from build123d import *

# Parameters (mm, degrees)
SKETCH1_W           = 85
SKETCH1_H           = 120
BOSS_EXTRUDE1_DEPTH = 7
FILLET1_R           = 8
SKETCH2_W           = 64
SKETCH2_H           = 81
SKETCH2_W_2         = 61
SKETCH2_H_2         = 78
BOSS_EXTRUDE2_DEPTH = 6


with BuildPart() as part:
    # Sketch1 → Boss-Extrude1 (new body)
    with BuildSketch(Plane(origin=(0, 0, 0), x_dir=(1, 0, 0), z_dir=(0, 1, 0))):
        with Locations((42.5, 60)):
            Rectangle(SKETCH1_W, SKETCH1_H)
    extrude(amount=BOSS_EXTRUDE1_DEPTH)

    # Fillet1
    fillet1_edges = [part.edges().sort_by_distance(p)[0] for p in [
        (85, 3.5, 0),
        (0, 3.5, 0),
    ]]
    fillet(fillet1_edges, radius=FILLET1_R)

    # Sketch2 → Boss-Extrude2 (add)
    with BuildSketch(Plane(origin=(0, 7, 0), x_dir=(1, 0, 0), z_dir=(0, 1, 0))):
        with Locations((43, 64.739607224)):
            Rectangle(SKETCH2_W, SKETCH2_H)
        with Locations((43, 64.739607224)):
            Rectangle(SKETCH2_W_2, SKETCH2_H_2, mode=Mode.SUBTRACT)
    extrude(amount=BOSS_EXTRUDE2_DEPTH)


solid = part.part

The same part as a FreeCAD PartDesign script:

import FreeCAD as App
import Part
import Sketcher


def edges_at(feature, points):
    """Names of the edges that pass closest to the given points."""
    edges = feature.Shape.Edges
    near = lambda p: min(range(len(edges)), key=lambda i: edges[i].distToShape(Part.Vertex(*p))[0])
    return sorted({f"Edge{near(p) + 1}" for p in points})


def add_polygon(sketch, points):
    """Adds a closed chain of lines whose ends are joined by coincident constraints."""
    first, n = sketch.GeometryCount, len(points)
    for a, b in zip(points, points[1:] + points[:1]):
        sketch.addGeometry(Part.LineSegment(App.Vector(*a, 0), App.Vector(*b, 0)), False)
    for i in range(n):
        sketch.addConstraint(Sketcher.Constraint("Coincident", first + i, 2, first + (i + 1) % n, 1))

doc = App.newDocument("Part")
body = doc.addObject("PartDesign::Body", "Body")

sketch1 = body.newObject("Sketcher::SketchObject", "Sketch")
sketch1.AttachmentSupport = (doc.getObject("XZ_Plane"), [""])
sketch1.MapMode = "FlatFace"
add_polygon(sketch1, [(0, -120), (0, 0), (85, 0), (85, -120)])
sketch1.addConstraint([
    Sketcher.Constraint("Vertical", 0),
    Sketcher.Constraint("Horizontal", 1),
    Sketcher.Constraint("Vertical", 2),
    Sketcher.Constraint("Horizontal", 3),
    Sketcher.Constraint("Coincident", 0, 2, -1, 1),
    Sketcher.Constraint("DistanceX", 1, 1, 1, 2, 85.0),
    Sketcher.Constraint("DistanceY", 0, 1, 0, 2, 120.0),
])
pad1 = body.newObject("PartDesign::Pad", "Pad")
pad1.Profile = sketch1
pad1.Length = 7
pad1.Reversed = True
doc.recompute()

fillet = body.newObject("PartDesign::Fillet", "Fillet")
fillet.Base = (pad1, edges_at(pad1, [(85, 3.5, 0), (0, 3.5, 0)]))
fillet.Radius = 8

sketch2 = body.newObject("Sketcher::SketchObject", "Sketch001")
sketch2.AttachmentSupport = (doc.getObject("XZ_Plane"), [""])
sketch2.MapMode = "FlatFace"
sketch2.AttachmentOffset = App.Placement(App.Vector(0, 0, -7), App.Rotation())
add_polygon(sketch2, [(11, -105), (11, -24), (75, -24), (75, -105)])
add_polygon(sketch2, [(74, -26), (12, -26), (12, -104), (74, -104)])
sketch2.addConstraint([
    Sketcher.Constraint("Vertical", 0),
    Sketcher.Constraint("Horizontal", 1),
    Sketcher.Constraint("Vertical", 2),
    Sketcher.Constraint("Horizontal", 3),
    Sketcher.Constraint("Horizontal", 4),
    Sketcher.Constraint("Vertical", 5),
    Sketcher.Constraint("Horizontal", 6),
    Sketcher.Constraint("Vertical", 7),
    Sketcher.Constraint("DistanceX", 1, 1, 1, 2, 64.0),
    Sketcher.Constraint("DistanceX", 4, 2, 4, 1, 61.0),
    Sketcher.Constraint("DistanceY", 0, 1, 0, 2, 81.0),
    Sketcher.Constraint("DistanceY", 5, 2, 5, 1, 78.0),
    Sketcher.Constraint("DistanceX", -1, 1, 0, 2, 11.0),
    Sketcher.Constraint("DistanceX", -1, 1, 4, 2, 12.5),
    Sketcher.Constraint("DistanceY", 4, 2, 0, 2, 1.5),
    Sketcher.Constraint("DistanceY", 0, 2, -1, 1, 24.239607),
])
pad2 = body.newObject("PartDesign::Pad", "Pad001")
pad2.Profile = sketch2
pad2.Length = 6
pad2.Reversed = True

doc.recompute()
